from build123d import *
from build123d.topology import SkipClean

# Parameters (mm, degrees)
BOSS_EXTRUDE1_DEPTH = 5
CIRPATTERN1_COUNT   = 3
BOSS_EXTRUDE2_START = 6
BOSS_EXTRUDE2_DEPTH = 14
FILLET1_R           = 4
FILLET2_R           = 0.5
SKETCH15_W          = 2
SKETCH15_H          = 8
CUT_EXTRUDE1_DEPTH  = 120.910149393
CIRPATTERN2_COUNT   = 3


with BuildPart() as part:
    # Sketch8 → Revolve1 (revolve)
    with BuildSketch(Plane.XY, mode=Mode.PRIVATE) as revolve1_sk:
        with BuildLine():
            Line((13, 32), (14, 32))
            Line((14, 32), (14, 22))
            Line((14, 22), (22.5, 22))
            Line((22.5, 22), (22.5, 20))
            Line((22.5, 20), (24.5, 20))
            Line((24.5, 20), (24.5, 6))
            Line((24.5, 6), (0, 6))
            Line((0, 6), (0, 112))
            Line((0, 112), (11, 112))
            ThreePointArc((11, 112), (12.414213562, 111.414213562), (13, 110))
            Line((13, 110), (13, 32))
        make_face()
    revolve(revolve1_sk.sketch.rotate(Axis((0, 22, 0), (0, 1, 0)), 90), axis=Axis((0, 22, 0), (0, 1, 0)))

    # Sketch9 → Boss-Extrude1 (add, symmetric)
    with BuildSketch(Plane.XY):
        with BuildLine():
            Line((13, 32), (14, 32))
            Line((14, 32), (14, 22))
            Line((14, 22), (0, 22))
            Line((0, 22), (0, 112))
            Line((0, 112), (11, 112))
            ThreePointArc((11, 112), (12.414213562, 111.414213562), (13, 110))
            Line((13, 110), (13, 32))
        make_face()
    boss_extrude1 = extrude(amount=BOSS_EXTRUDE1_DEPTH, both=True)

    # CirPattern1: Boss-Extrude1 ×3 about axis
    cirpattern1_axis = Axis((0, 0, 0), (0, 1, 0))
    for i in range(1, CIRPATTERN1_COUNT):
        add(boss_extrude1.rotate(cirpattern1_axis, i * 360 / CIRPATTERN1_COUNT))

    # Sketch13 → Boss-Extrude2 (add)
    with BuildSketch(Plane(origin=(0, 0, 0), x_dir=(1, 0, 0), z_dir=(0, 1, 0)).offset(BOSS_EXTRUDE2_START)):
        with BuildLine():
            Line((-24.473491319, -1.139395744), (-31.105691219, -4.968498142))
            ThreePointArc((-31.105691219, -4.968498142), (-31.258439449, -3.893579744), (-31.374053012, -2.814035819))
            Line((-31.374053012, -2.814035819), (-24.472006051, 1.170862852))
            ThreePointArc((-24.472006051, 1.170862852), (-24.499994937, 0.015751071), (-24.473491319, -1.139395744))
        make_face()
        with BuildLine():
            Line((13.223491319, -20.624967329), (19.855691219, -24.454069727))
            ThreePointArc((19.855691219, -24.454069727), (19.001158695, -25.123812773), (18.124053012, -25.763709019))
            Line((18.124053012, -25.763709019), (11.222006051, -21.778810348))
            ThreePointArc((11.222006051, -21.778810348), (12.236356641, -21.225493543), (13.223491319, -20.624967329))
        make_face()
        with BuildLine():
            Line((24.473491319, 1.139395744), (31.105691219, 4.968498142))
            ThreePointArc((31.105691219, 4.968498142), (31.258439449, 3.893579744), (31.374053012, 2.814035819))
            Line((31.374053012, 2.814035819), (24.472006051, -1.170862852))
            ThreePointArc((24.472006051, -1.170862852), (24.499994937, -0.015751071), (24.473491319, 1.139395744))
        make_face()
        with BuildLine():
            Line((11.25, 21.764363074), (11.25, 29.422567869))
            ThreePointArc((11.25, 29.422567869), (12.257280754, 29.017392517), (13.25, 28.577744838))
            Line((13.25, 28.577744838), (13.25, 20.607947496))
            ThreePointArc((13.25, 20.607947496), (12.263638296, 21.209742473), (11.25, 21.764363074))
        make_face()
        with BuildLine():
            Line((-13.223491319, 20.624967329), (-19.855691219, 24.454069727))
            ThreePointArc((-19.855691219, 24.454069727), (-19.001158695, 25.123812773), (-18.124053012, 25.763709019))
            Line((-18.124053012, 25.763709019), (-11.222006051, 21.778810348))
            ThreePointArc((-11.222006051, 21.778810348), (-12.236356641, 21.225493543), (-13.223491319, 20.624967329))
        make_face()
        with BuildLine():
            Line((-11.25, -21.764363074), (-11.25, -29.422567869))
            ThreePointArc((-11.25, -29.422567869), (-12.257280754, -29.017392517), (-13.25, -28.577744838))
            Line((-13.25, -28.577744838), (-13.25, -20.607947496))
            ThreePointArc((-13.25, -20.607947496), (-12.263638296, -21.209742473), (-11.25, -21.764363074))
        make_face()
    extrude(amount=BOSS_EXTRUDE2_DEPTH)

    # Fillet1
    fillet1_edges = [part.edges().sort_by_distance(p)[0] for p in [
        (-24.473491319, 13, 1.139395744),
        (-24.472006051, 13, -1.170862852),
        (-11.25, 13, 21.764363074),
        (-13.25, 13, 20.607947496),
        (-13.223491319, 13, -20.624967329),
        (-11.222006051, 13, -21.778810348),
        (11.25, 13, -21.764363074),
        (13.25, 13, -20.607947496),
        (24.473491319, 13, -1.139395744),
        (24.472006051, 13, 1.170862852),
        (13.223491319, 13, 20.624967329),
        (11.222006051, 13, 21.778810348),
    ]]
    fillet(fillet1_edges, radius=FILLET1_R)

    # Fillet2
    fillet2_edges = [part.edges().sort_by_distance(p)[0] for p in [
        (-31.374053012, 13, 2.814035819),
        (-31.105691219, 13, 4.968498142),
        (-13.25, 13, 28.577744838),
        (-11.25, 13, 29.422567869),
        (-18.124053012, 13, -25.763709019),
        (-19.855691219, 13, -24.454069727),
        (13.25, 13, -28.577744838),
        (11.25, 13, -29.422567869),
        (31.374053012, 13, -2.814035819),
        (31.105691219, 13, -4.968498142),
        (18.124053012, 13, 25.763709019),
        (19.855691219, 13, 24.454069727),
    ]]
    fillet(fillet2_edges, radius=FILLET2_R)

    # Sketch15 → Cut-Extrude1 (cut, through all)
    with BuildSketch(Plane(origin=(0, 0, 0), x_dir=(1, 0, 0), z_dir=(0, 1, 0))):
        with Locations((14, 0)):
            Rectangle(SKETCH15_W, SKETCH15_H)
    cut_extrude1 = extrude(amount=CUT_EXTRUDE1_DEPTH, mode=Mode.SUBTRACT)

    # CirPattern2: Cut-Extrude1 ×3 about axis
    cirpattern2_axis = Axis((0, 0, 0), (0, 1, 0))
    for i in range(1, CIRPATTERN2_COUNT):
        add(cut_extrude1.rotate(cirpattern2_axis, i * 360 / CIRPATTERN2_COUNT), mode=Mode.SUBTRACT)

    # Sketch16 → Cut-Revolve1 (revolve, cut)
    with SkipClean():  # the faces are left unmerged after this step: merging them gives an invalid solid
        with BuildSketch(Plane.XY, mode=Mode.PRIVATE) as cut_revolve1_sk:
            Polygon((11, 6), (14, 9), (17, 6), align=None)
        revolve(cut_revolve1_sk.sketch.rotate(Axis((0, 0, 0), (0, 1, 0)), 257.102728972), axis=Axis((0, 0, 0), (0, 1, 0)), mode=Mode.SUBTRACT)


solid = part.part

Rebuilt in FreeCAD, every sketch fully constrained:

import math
import FreeCAD as App
import Part
import Sketcher
Q = App.Units.Quantity


def edges_at(feature, points):
    """Names of the edges that pass closest to the given points."""
    edges = feature.Shape.Edges
    near = lambda p: min(range(len(edges)), key=lambda i: edges[i].distToShape(Part.Vertex(*p))[0])
    return sorted({f"Edge{near(p) + 1}" for p in points})

doc = App.newDocument("Part")
params = doc.addObject("Spreadsheet::Sheet", "Params")
for row, (alias, value) in enumerate([
    ("sketch1_radius", "2 mm"),
    ("sketch1_width", "1 mm"),
    ("sketch1_width2", "11 mm"),
    ("sketch1_width3", "2 mm"),
    ("sketch1_height", "78 mm"),
    ("revolution_angle", "360 deg"),
    ("sketch2_radius", "2 mm"),
    ("sketch2_width", "1 mm"),
    ("sketch2_width2", "11 mm"),
    ("sketch2_height", "78 mm"),
    ("sketch2_height2", "90 mm"),
    ("pad1_length", "10 mm"),
    ("sketch3_radius", "24.5 mm"),
    ("sketch3_radius2", "31.5 mm"),
    ("pad2_length", "14 mm"),
    ("fillet_radius", "4 mm"),
    ("fillet2_radius", "0.5 mm"),
    ("sketch4_width", "2 mm"),
    ("sketch4_height", "8 mm"),
    ("sketch5_width", "6 mm"),
    ("groove_angle", "360 deg"),
], start=1):
    params.set(f"A{row}", alias)
    params.set(f"B{row}", "=" + value)
    params.setAlias(f"B{row}", alias)

body = doc.addObject("PartDesign::Body", "Body")

# Sketch on XY plane
sketch1 = body.newObject("Sketcher::SketchObject", "Sketch")
sketch1.AttachmentSupport = (doc.getObject("XY_Plane"), [""])
sketch1.MapMode = "FlatFace"
sketch1.addGeometry(Part.LineSegment(App.Vector(14, 32, 0), App.Vector(13, 32, 0)), False)
sketch1.addGeometry(Part.LineSegment(App.Vector(13, 32, 0), App.Vector(13, 110, 0)), False)
sketch1.addGeometry(Part.ArcOfCircle(Part.Circle(App.Vector(11, 110, 0), App.Vector(0, 0, 1), 2), math.radians(0), math.radians(90)), False)
sketch1.addGeometry(Part.LineSegment(App.Vector(11, 112, 0), App.Vector(0, 112, 0)), False)
sketch1.addGeometry(Part.LineSegment(App.Vector(0, 112, 0), App.Vector(0, 6, 0)), False)
sketch1.addGeometry(Part.LineSegment(App.Vector(0, 6, 0), App.Vector(24.5, 6, 0)), False)
sketch1.addGeometry(Part.LineSegment(App.Vector(24.5, 6, 0), App.Vector(24.5, 20, 0)), False)
sketch1.addGeometry(Part.LineSegment(App.Vector(24.5, 20, 0), App.Vector(22.5, 20, 0)), False)
sketch1.addGeometry(Part.LineSegment(App.Vector(22.5, 20, 0), App.Vector(22.5, 22, 0)), False)
sketch1.addGeometry(Part.LineSegment(App.Vector(22.5, 22, 0), App.Vector(14, 22, 0)), False)
sketch1.addGeometry(Part.LineSegment(App.Vector(14, 22, 0), App.Vector(14, 32, 0)), False)
sketch1.addConstraint(Sketcher.Constraint("Coincident", 0, 2, 1, 1))
sketch1.addConstraint(Sketcher.Constraint("Tangent", 1, 2, 2, 1))
sketch1.addConstraint(Sketcher.Constraint("Tangent", 2, 2, 3, 1))
sketch1.addConstraint(Sketcher.Constraint("Coincident", 3, 2, 4, 1))
sketch1.addConstraint(Sketcher.Constraint("Coincident", 4, 2, 5, 1))
sketch1.addConstraint(Sketcher.Constraint("Coincident", 5, 2, 6, 1))
sketch1.addConstraint(Sketcher.Constraint("Coincident", 6, 2, 7, 1))
sketch1.addConstraint(Sketcher.Constraint("Coincident", 7, 2, 8, 1))
sketch1.addConstraint(Sketcher.Constraint("Coincident", 8, 2, 9, 1))
sketch1.addConstraint(Sketcher.Constraint("Coincident", 9, 2, 10, 1))
sketch1.addConstraint(Sketcher.Constraint("Coincident", 10, 2, 0, 1))
sketch1.addConstraint(Sketcher.Constraint("Horizontal", 0))
sketch1.addConstraint(Sketcher.Constraint("Vertical", 1))
sketch1.addConstraint(Sketcher.Constraint("Horizontal", 3))
sketch1.addConstraint(Sketcher.Constraint("Vertical", 4))
sketch1.addConstraint(Sketcher.Constraint("Horizontal", 5))
sketch1.addConstraint(Sketcher.Constraint("Vertical", 6))
sketch1.addConstraint(Sketcher.Constraint("Horizontal", 7))
sketch1.addConstraint(Sketcher.Constraint("Vertical", 8))
sketch1.addConstraint(Sketcher.Constraint("Horizontal", 9))
sketch1.addConstraint(Sketcher.Constraint("Vertical", 10))
sketch1.addConstraint(Sketcher.Constraint("PointOnObject", 3, 2, -2))
sketch1.addConstraint(Sketcher.Constraint("Equal", 7, 8))
sketch1.addConstraint(Sketcher.Constraint("Radius", 2, 2.0))
sketch1.addConstraint(Sketcher.Constraint("DistanceX", 0, 2, 0, 1, 1.0))
sketch1.addConstraint(Sketcher.Constraint("DistanceX", 3, 2, 3, 1, 11.0))
sketch1.addConstraint(Sketcher.Constraint("DistanceX", 7, 2, 7, 1, 2.0))
sketch1.addConstraint(Sketcher.Constraint("DistanceY", 1, 1, 1, 2, 78.0))
sketch1.addConstraint(Sketcher.Constraint("DistanceY", 4, 2, 4, 1, 106.0))
sketch1.addConstraint(Sketcher.Constraint("DistanceY", 6, 1, 6, 2, 14.0))
sketch1.addConstraint(Sketcher.Constraint("DistanceX", 5, 1, 5, 2, 24.5))
sketch1.addConstraint(Sketcher.Constraint("DistanceY", -1, 1, 2, 3, 110.0))
sketch1.setExpression("Constraints[23]", "Params.sketch1_radius")
sketch1.setExpression("Constraints[24]", "Params.sketch1_width")
sketch1.setExpression("Constraints[25]", "Params.sketch1_width2")
sketch1.setExpression("Constraints[26]", "Params.sketch1_width3")
sketch1.setExpression("Constraints[27]", "Params.sketch1_height")
revolution = body.newObject("PartDesign::Revolution", "Revolution")
revolution.Profile = sketch1
revolution.ReferenceAxis = (sketch1, ["V_Axis"])
revolution.setExpression("Angle", "Params.revolution_angle")

# Sketch on XY plane
sketch2 = body.newObject("Sketcher::SketchObject", "Sketch001")
sketch2.AttachmentSupport = (doc.getObject("XY_Plane"), [""])
sketch2.MapMode = "FlatFace"
sketch2.addGeometry(Part.LineSegment(App.Vector(14, 32, 0), App.Vector(13, 32, 0)), False)
sketch2.addGeometry(Part.LineSegment(App.Vector(13, 32, 0), App.Vector(13, 110, 0)), False)
sketch2.addGeometry(Part.ArcOfCircle(Part.Circle(App.Vector(11, 110, 0), App.Vector(0, 0, 1), 2), math.radians(0), math.radians(90)), False)
sketch2.addGeometry(Part.LineSegment(App.Vector(11, 112, 0), App.Vector(0, 112, 0)), False)
sketch2.addGeometry(Part.LineSegment(App.Vector(0, 112, 0), App.Vector(0, 22, 0)), False)
sketch2.addGeometry(Part.LineSegment(App.Vector(0, 22, 0), App.Vector(14, 22, 0)), False)
sketch2.addGeometry(Part.LineSegment(App.Vector(14, 22, 0), App.Vector(14, 32, 0)), False)
sketch2.addConstraint(Sketcher.Constraint("Coincident", 0, 2, 1, 1))
sketch2.addConstraint(Sketcher.Constraint("Tangent", 1, 2, 2, 1))
sketch2.addConstraint(Sketcher.Constraint("Tangent", 2, 2, 3, 1))
sketch2.addConstraint(Sketcher.Constraint("Coincident", 3, 2, 4, 1))
sketch2.addConstraint(Sketcher.Constraint("Coincident", 4, 2, 5, 1))
sketch2.addConstraint(Sketcher.Constraint("Coincident", 5, 2, 6, 1))
sketch2.addConstraint(Sketcher.Constraint("Coincident", 6, 2, 0, 1))
sketch2.addConstraint(Sketcher.Constraint("Horizontal", 0))
sketch2.addConstraint(Sketcher.Constraint("Vertical", 1))
sketch2.addConstraint(Sketcher.Constraint("Horizontal", 3))
sketch2.addConstraint(Sketcher.Constraint("Vertical", 4))
sketch2.addConstraint(Sketcher.Constraint("Horizontal", 5))
sketch2.addConstraint(Sketcher.Constraint("Vertical", 6))
sketch2.addConstraint(Sketcher.Constraint("PointOnObject", 3, 2, -2))
sketch2.addConstraint(Sketcher.Constraint("Radius", 2, 2.0))
sketch2.addConstraint(Sketcher.Constraint("DistanceX", 0, 2, 0, 1, 1.0))
sketch2.addConstraint(Sketcher.Constraint("DistanceX", 3, 2, 3, 1, 11.0))
sketch2.addConstraint(Sketcher.Constraint("DistanceY", 1, 1, 1, 2, 78.0))
sketch2.addConstraint(Sketcher.Constraint("DistanceY", 4, 2, 4, 1, 90.0))
sketch2.addConstraint(Sketcher.Constraint("DistanceY", -1, 1, 2, 3, 110.0))
sketch2.setExpression("Constraints[14]", "Params.sketch2_radius")
sketch2.setExpression("Constraints[15]", "Params.sketch2_width")
sketch2.setExpression("Constraints[16]", "Params.sketch2_width2")
sketch2.setExpression("Constraints[17]", "Params.sketch2_height")
sketch2.setExpression("Constraints[18]", "Params.sketch2_height2")
pad1 = body.newObject("PartDesign::Pad", "Pad")
pad1.Profile = sketch2
pad1.setExpression("Length", "Params.pad1_length")
pad1.Midplane = True
doc.recompute()

polarpattern = body.newObject("PartDesign::PolarPattern", "PolarPattern")
polarpattern.Originals = [pad1]
polarpattern.Axis = (doc.getObject("Y_Axis"), [""])
polarpattern.Angle = 360
polarpattern.Occurrences = 3
body.Tip = polarpattern

# Sketch on XZ plane
sketch3 = body.newObject("Sketcher::SketchObject", "Sketch002")
sketch3.AttachmentSupport = (doc.getObject("XZ_Plane"), [""])
sketch3.MapMode = "FlatFace"
sketch3.AttachmentOffset = App.Placement(App.Vector(0, 0, -6), App.Rotation())
sketch3.addGeometry(Part.LineSegment(App.Vector(-31.1, 5, 0), App.Vector(-24.5, 1.1, 0)), False)
sketch3.addGeometry(Part.ArcOfCircle(Part.Circle(App.Vector(0, 0, 0), App.Vector(0, 0, 1), 24.5), math.radians(177.33), math.radians(182.74)), False)
sketch3.addGeometry(Part.LineSegment(App.Vector(-24.5, -1.2, 0), App.Vector(-31.4, 2.8, 0)), False)
sketch3.addGeometry(Part.ArcOfCircle(Part.Circle(App.Vector(0, 0, 0), App.Vector(0, 0, 1), 31.5), math.radians(170.92), math.radians(174.87)), False)
sketch3.addGeometry(Part.LineSegment(App.Vector(19.9, 24.5, 0), App.Vector(13.2, 20.6, 0)), False)
sketch3.addGeometry(Part.ArcOfCircle(Part.Circle(App.Vector(0, 0, 0), App.Vector(0, 0, 1), 24.5), math.radians(57.33), math.radians(62.74)), False)
sketch3.addGeometry(Part.LineSegment(App.Vector(11.2, 21.8, 0), App.Vector(18.1, 25.8, 0)), False)
sketch3.addGeometry(Part.ArcOfCircle(Part.Circle(App.Vector(0, 0, 0), App.Vector(0, 0, 1), 31.5), math.radians(50.92), math.radians(54.87)), False)
sketch3.addGeometry(Part.LineSegment(App.Vector(31.1, -5, 0), App.Vector(24.5, -1.1, 0)), False)
sketch3.addGeometry(Part.ArcOfCircle(Part.Circle(App.Vector(0, 0, 0), App.Vector(0, 0, 1), 24.5), math.radians(-2.67), math.radians(2.74)), False)
sketch3.addGeometry(Part.LineSegment(App.Vector(24.5, 1.2, 0), App.Vector(31.4, -2.8, 0)), False)
sketch3.addGeometry(Part.ArcOfCircle(Part.Circle(App.Vector(0, 0, 0), App.Vector(0, 0, 1), 31.5), math.radians(-9.08), math.radians(-5.13)), False)
sketch3.addGeometry(Part.LineSegment(App.Vector(11.2, -29.4, 0), App.Vector(11.2, -21.8, 0)), False)
sketch3.addGeometry(Part.ArcOfCircle(Part.Circle(App.Vector(0, 0, 0), App.Vector(0, 0, 1), 24.5), math.radians(-62.67), math.radians(-57.26)), False)
sketch3.addGeometry(Part.LineSegment(App.Vector(13.2, -20.6, 0), App.Vector(13.2, -28.6, 0)), False)
sketch3.addGeometry(Part.ArcOfCircle(Part.Circle(App.Vector(0, 0, 0), App.Vector(0, 0, 1), 31.5), math.radians(-69.08), math.radians(-65.13)), False)
sketch3.addGeometry(Part.LineSegment(App.Vector(-19.9, -24.5, 0), App.Vector(-13.2, -20.6, 0)), False)
sketch3.addGeometry(Part.ArcOfCircle(Part.Circle(App.Vector(0, 0, 0), App.Vector(0, 0, 1), 24.5), math.radians(-122.67), math.radians(-117.26)), False)
sketch3.addGeometry(Part.LineSegment(App.Vector(-11.2, -21.8, 0), App.Vector(-18.1, -25.8, 0)), False)
sketch3.addGeometry(Part.ArcOfCircle(Part.Circle(App.Vector(0, 0, 0), App.Vector(0, 0, 1), 31.5), math.radians(-129.08), math.radians(-125.13)), False)
sketch3.addGeometry(Part.LineSegment(App.Vector(-11.2, 29.4, 0), App.Vector(-11.2, 21.8, 0)), False)
sketch3.addGeometry(Part.ArcOfCircle(Part.Circle(App.Vector(0, 0, 0), App.Vector(0, 0, 1), 24.5), math.radians(117.33), math.radians(122.74)), False)
sketch3.addGeometry(Part.LineSegment(App.Vector(-13.2, 20.6, 0), App.Vector(-13.2, 28.6, 0)), False)
sketch3.addGeometry(Part.ArcOfCircle(Part.Circle(App.Vector(0, 0, 0), App.Vector(0, 0, 1), 31.5), math.radians(110.92), math.radians(114.87)), False)
sketch3.addConstraint(Sketcher.Constraint("Coincident", 0, 2, 1, 1))
sketch3.addConstraint(Sketcher.Constraint("Coincident", 1, 2, 2, 1))
sketch3.addConstraint(Sketcher.Constraint("Coincident", 2, 2, 3, 2))
sketch3.addConstraint(Sketcher.Constraint("Coincident", 3, 1, 0, 1))
sketch3.addConstraint(Sketcher.Constraint("Coincident", 4, 2, 5, 1))
sketch3.addConstraint(Sketcher.Constraint("Coincident", 5, 2, 6, 1))
sketch3.addConstraint(Sketcher.Constraint("Coincident", 6, 2, 7, 2))
sketch3.addConstraint(Sketcher.Constraint("Coincident", 7, 1, 4, 1))
sketch3.addConstraint(Sketcher.Constraint("Coincident", 8, 2, 9, 1))
sketch3.addConstraint(Sketcher.Constraint("Coincident", 9, 2, 10, 1))
sketch3.addConstraint(Sketcher.Constraint("Coincident", 10, 2, 11, 2))
sketch3.addConstraint(Sketcher.Constraint("Coincident", 11, 1, 8, 1))
sketch3.addConstraint(Sketcher.Constraint("Coincident", 12, 2, 13, 1))
sketch3.addConstraint(Sketcher.Constraint("Coincident", 13, 2, 14, 1))
sketch3.addConstraint(Sketcher.Constraint("Coincident", 14, 2, 15, 2))
sketch3.addConstraint(Sketcher.Constraint("Coincident", 15, 1, 12, 1))
sketch3.addConstraint(Sketcher.Constraint("Coincident", 16, 2, 17, 1))
sketch3.addConstraint(Sketcher.Constraint("Coincident", 17, 2, 18, 1))
sketch3.addConstraint(Sketcher.Constraint("Coincident", 18, 2, 19, 2))
sketch3.addConstraint(Sketcher.Constraint("Coincident", 19, 1, 16, 1))
sketch3.addConstraint(Sketcher.Constraint("Coincident", 20, 2, 21, 1))
sketch3.addConstraint(Sketcher.Constraint("Coincident", 21, 2, 22, 1))
sketch3.addConstraint(Sketcher.Constraint("Coincident", 22, 2, 23, 2))
sketch3.addConstraint(Sketcher.Constraint("Coincident", 23, 1, 20, 1))
sketch3.addConstraint(Sketcher.Constraint("Vertical", 12))
sketch3.addConstraint(Sketcher.Constraint("Vertical", 14))
sketch3.addConstraint(Sketcher.Constraint("Vertical", 20))
sketch3.addConstraint(Sketcher.Constraint("Vertical", 22))
sketch3.addConstraint(Sketcher.Constraint("Coincident", 1, 3, -1, 1))
sketch3.addConstraint(Sketcher.Constraint("Coincident", 3, 3, -1, 1))
sketch3.addConstraint(Sketcher.Constraint("Coincident", 5, 3, -1, 1))
sketch3.addConstraint(Sketcher.Constraint("Coincident", 7, 3, -1, 1))
sketch3.addConstraint(Sketcher.Constraint("Coincident", 9, 3, -1, 1))
sketch3.addConstraint(Sketcher.Constraint("Coincident", 11, 3, -1, 1))
sketch3.addConstraint(Sketcher.Constraint("Coincident", 13, 3, -1, 1))
sketch3.addConstraint(Sketcher.Constraint("Coincident", 15, 3, -1, 1))
sketch3.addConstraint(Sketcher.Constraint("Coincident", 17, 3, -1, 1))
sketch3.addConstraint(Sketcher.Constraint("Coincident", 19, 3, -1, 1))
sketch3.addConstraint(Sketcher.Constraint("Coincident", 21, 3, -1, 1))
sketch3.addConstraint(Sketcher.Constraint("Coincident", 23, 3, -1, 1))
sketch3.addConstraint(Sketcher.Constraint("Equal", 1, 5))
sketch3.addConstraint(Sketcher.Constraint("Equal", 3, 7))
sketch3.addConstraint(Sketcher.Constraint("Equal", 5, 9))
sketch3.addConstraint(Sketcher.Constraint("Equal", 7, 11))
sketch3.addConstraint(Sketcher.Constraint("Equal", 9, 13))
sketch3.addConstraint(Sketcher.Constraint("Equal", 11, 15))
sketch3.addConstraint(Sketcher.Constraint("Equal", 13, 17))
sketch3.addConstraint(Sketcher.Constraint("Equal", 15, 19))
sketch3.addConstraint(Sketcher.Constraint("Equal", 17, 21))
sketch3.addConstraint(Sketcher.Constraint("Equal", 19, 23))
sketch3.addConstraint(Sketcher.Constraint("Parallel", 0, 2))
sketch3.addConstraint(Sketcher.Constraint("Parallel", 4, 6))
sketch3.addConstraint(Sketcher.Constraint("Parallel", 2, 8))
sketch3.addConstraint(Sketcher.Constraint("Parallel", 8, 10))
sketch3.addConstraint(Sketcher.Constraint("Parallel", 6, 16))
sketch3.addConstraint(Sketcher.Constraint("Parallel", 16, 18))
sketch3.addConstraint(Sketcher.Constraint("Equal", 12, 20))
sketch3.addConstraint(Sketcher.Constraint("Equal", 14, 22))
sketch3.addConstraint(Sketcher.Constraint("Equal", 0, 4))
sketch3.addConstraint(Sketcher.Constraint("Equal", 2, 6))
sketch3.addConstraint(Sketcher.Constraint("Equal", 4, 8))
sketch3.addConstraint(Sketcher.Constraint("Equal", 6, 10))
sketch3.addConstraint(Sketcher.Constraint("Equal", 8, 16))
sketch3.addConstraint(Sketcher.Constraint("Equal", 10, 18))
sketch3.addConstraint(Sketcher.Constraint("Radius", 1, 24.5))
sketch3.addConstraint(Sketcher.Constraint("Radius", 3, 31.5))
sketch3.addConstraint(Sketcher.Constraint("Angle", 0, Q("-30 deg")))
sketch3.addConstraint(Sketcher.Constraint("Angle", 4, Q("-150 deg")))
sketch3.addConstraint(Sketcher.Constraint("DistanceX", 12, 2, 13, 2, 2.0))
sketch3.addConstraint(Sketcher.Constraint("DistanceX", -1, 1, 12, 2, 11.25))
sketch3.addConstraint(Sketcher.Constraint("DistanceY", -1, 1, 3, 1, 4.968498))
sketch3.addConstraint(Sketcher.Constraint("DistanceY", 5, 2, 6, 2, 3.984899))
sketch3.setExpression("Constraints[64]", "Params.sketch3_radius")
sketch3.setExpression("Constraints[65]", "Params.sketch3_radius2")
pad2 = body.newObject("PartDesign::Pad", "Pad001")
pad2.Profile = sketch3
pad2.setExpression("Length", "Params.pad2_length")
pad2.Reversed = True
doc.recompute()

fillet = body.newObject("PartDesign::Fillet", "Fillet")
fillet.Base = (pad2, edges_at(pad2, [
    (-24.473, 13, 1.139),
    (-24.472, 13, -1.171),
    (-11.25, 13, 21.764),
    (-13.25, 13, 20.608),
    (-13.223, 13, -20.625),
    (-11.222, 13, -21.779),
    (11.25, 13, -21.764),
    (13.25, 13, -20.608),
    (24.473, 13, -1.139),
    (24.472, 13, 1.171),
    (13.223, 13, 20.625),
    (11.222, 13, 21.779),
]))
fillet.setExpression("Radius", "Params.fillet_radius")
doc.recompute()

fillet2 = body.newObject("PartDesign::Fillet", "Fillet001")
fillet2.Base = (fillet, edges_at(fillet, [
    (-31.374, 13, 2.814),
    (-31.106, 13, 4.968),
    (-13.25, 13, 28.578),
    (-11.25, 13, 29.423),
    (-18.124, 13, -25.764),
    (-19.856, 13, -24.454),
    (13.25, 13, -28.578),
    (11.25, 13, -29.423),
    (31.374, 13, -2.814),
    (31.106, 13, -4.968),
    (18.124, 13, 25.764),
    (19.856, 13, 24.454),
]))
fillet2.setExpression("Radius", "Params.fillet2_radius")

# Sketch on XZ plane
sketch4 = body.newObject("Sketcher::SketchObject", "Sketch003")
sketch4.AttachmentSupport = (doc.getObject("XZ_Plane"), [""])
sketch4.MapMode = "FlatFace"
sketch4.addGeometry(Part.LineSegment(App.Vector(13, -4, 0), App.Vector(13, 4, 0)), False)
sketch4.addGeometry(Part.LineSegment(App.Vector(13, 4, 0), App.Vector(15, 4, 0)), False)
sketch4.addGeometry(Part.LineSegment(App.Vector(15, 4, 0), App.Vector(15, -4, 0)), False)
sketch4.addGeometry(Part.LineSegment(App.Vector(15, -4, 0), App.Vector(13, -4, 0)), False)
sketch4.addConstraint(Sketcher.Constraint("Coincident", 0, 2, 1, 1))
sketch4.addConstraint(Sketcher.Constraint("Coincident", 1, 2, 2, 1))
sketch4.addConstraint(Sketcher.Constraint("Coincident", 2, 2, 3, 1))
sketch4.addConstraint(Sketcher.Constraint("Coincident", 3, 2, 0, 1))
sketch4.addConstraint(Sketcher.Constraint("Vertical", 0))
sketch4.addConstraint(Sketcher.Constraint("Horizontal", 1))
sketch4.addConstraint(Sketcher.Constraint("Vertical", 2))
sketch4.addConstraint(Sketcher.Constraint("Horizontal", 3))
sketch4.addConstraint(Sketcher.Constraint("DistanceX", 1, 1, 1, 2, 2.0))
sketch4.addConstraint(Sketcher.Constraint("DistanceY", 0, 1, 0, 2, 8.0))
sketch4.addConstraint(Sketcher.Constraint("DistanceX", -1, 1, 0, 2, 13.0))
sketch4.addConstraint(Sketcher.Constraint("DistanceY", -1, 1, 0, 2, 4.0))
sketch4.setExpression("Constraints[8]", "Params.sketch4_width")
sketch4.setExpression("Constraints[9]", "Params.sketch4_height")
pocket1 = body.newObject("PartDesign::Pocket", "Pocket")
pocket1.Profile = sketch4
pocket1.Type = "ThroughAll"
doc.recompute()

polarpattern2 = body.newObject("PartDesign::PolarPattern", "PolarPattern001")
polarpattern2.Originals = [pocket1]
polarpattern2.Axis = (doc.getObject("Y_Axis"), [""])
polarpattern2.Angle = 360
polarpattern2.Occurrences = 3
body.Tip = polarpattern2

# Sketch on XY plane
sketch5 = body.newObject("Sketcher::SketchObject", "Sketch004")
sketch5.AttachmentSupport = (doc.getObject("XY_Plane"), [""])
sketch5.MapMode = "FlatFace"
sketch5.addGeometry(Part.LineSegment(App.Vector(14, 9, 0), App.Vector(11, 6, 0)), False)
sketch5.addGeometry(Part.LineSegment(App.Vector(11, 6, 0), App.Vector(17, 6, 0)), False)
sketch5.addGeometry(Part.LineSegment(App.Vector(17, 6, 0), App.Vector(14, 9, 0)), False)
sketch5.addConstraint(Sketcher.Constraint("Coincident", 0, 2, 1, 1))
sketch5.addConstraint(Sketcher.Constraint("Coincident", 1, 2, 2, 1))
sketch5.addConstraint(Sketcher.Constraint("Coincident", 2, 2, 0, 1))
sketch5.addConstraint(Sketcher.Constraint("Horizontal", 1))
sketch5.addConstraint(Sketcher.Constraint("Perpendicular", 0, 2))
sketch5.addConstraint(Sketcher.Constraint("Equal", 0, 2))
sketch5.addConstraint(Sketcher.Constraint("DistanceX", 1, 1, 1, 2, 6.0))
sketch5.addConstraint(Sketcher.Constraint("DistanceX", -1, 1, 0, 2, 11.0))
sketch5.addConstraint(Sketcher.Constraint("DistanceY", -1, 1, 0, 2, 6.0))
sketch5.setExpression("Constraints[6]", "Params.sketch5_width")
groove = body.newObject("PartDesign::Groove", "Groove")
groove.Profile = sketch5
groove.ReferenceAxis = (sketch5, ["V_Axis"])
groove.setExpression("Angle", "Params.groove_angle")

doc.recompute()
